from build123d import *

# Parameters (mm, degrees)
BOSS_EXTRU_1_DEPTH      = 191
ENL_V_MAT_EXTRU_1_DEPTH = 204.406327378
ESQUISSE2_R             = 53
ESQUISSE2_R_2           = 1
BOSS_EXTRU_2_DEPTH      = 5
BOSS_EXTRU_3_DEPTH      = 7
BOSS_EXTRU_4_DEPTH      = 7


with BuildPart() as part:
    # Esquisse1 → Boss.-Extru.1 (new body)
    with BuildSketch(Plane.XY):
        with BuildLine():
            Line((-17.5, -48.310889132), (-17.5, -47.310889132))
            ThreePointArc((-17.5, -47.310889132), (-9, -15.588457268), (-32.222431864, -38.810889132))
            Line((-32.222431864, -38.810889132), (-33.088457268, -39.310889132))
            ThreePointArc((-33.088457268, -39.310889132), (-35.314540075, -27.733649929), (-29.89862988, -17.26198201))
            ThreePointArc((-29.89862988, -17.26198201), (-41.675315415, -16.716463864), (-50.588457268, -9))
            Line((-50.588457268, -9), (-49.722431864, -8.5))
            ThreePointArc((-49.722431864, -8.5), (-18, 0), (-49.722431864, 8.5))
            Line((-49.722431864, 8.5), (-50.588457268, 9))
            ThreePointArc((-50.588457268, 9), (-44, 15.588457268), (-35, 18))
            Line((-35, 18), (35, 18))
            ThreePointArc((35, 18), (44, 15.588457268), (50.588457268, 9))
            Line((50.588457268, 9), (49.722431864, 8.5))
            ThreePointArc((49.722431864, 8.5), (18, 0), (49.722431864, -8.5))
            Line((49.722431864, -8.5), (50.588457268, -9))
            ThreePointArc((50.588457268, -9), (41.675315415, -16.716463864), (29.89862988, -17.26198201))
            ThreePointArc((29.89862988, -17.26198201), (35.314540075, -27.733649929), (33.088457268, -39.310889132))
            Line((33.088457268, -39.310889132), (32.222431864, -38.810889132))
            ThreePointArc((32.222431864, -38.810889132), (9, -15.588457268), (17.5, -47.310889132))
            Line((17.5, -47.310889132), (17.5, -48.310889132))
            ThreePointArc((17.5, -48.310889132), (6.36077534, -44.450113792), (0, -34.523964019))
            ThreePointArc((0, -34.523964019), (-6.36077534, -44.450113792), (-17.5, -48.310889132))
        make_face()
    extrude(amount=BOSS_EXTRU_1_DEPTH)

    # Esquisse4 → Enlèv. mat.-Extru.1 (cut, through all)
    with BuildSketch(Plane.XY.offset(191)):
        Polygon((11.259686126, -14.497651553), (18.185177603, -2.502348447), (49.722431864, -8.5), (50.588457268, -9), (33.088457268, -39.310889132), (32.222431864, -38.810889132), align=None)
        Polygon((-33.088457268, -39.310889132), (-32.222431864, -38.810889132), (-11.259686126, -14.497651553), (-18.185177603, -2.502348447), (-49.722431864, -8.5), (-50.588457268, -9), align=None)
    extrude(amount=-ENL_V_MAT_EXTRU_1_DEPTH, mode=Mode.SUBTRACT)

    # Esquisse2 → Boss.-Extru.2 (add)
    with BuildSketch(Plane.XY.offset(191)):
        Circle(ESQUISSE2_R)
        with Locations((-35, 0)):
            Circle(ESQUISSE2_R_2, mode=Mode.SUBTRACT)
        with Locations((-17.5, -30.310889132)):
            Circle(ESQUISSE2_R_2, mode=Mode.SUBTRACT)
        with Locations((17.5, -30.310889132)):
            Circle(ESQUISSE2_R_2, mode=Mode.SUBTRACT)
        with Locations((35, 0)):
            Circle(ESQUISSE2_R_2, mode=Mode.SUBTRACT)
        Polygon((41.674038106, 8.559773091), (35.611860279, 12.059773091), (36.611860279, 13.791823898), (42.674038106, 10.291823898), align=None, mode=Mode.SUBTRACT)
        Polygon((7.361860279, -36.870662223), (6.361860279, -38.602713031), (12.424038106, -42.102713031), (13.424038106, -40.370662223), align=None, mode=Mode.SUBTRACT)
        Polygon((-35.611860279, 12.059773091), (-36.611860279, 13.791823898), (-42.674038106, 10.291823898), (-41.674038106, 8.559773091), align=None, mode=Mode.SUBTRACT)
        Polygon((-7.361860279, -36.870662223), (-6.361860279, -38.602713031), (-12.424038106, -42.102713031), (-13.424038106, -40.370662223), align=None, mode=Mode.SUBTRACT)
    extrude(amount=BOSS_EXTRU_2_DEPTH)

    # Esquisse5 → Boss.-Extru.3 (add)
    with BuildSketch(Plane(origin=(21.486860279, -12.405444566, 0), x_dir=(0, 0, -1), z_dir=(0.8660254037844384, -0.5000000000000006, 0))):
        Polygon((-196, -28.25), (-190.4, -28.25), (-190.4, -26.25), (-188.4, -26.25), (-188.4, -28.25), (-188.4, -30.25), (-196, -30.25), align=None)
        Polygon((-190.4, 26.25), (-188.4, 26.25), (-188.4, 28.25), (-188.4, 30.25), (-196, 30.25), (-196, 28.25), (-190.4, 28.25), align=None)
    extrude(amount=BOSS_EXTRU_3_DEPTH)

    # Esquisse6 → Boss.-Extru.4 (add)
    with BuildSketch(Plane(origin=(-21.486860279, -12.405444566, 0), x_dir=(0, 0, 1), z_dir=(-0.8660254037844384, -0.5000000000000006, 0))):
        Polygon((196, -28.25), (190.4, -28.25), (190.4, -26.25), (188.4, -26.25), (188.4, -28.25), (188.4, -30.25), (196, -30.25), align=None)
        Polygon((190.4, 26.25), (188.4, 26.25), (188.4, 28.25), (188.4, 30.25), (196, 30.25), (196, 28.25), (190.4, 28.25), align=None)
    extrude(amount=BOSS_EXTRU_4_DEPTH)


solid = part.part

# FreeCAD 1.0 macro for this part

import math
import FreeCAD as App
import Part
import Sketcher
Q = App.Units.Quantity


def add_polygon(sketch, points):
    """Adds a closed chain of lines whose ends are joined by coincident constraints."""
    first, n = sketch.GeometryCount, len(points)
    for a, b in zip(points, points[1:] + points[:1]):
        sketch.addGeometry(Part.LineSegment(App.Vector(*a, 0), App.Vector(*b, 0)), False)
    for i in range(n):
        sketch.addConstraint(Sketcher.Constraint("Coincident", first + i, 2, first + (i + 1) % n, 1))

doc = App.newDocument("Part")
body = doc.addObject("PartDesign::Body", "Body")

# Sketch on XY plane
sketch1 = body.newObject("Sketcher::SketchObject", "Sketch")
sketch1.AttachmentSupport = (doc.getObject("XY_Plane"), [""])
sketch1.MapMode = "FlatFace"
sketch1.addGeometry([
    Part.LineSegment(App.Vector(-17.5, -47.3, 0), App.Vector(-17.5, -48.3, 0)),  # 0
    Part.ArcOfCircle(Part.Circle(App.Vector(-17.5, -30.3, 0), App.Vector(0, 0, 1), 18), math.radians(-90), math.radians(-14)),  # 1
    Part.ArcOfCircle(Part.Circle(App.Vector(17.5, -30.3, 0), App.Vector(0, 0, 1), 18), math.radians(-166), math.radians(-90)),  # 2
    Part.LineSegment(App.Vector(17.5, -48.3, 0), App.Vector(17.5, -47.3, 0)),  # 3
    Part.ArcOfCircle(Part.Circle(App.Vector(17.5, -30.3, 0), App.Vector(0, 0, 1), 17), math.radians(-30), math.radians(270)),  # 4
    Part.LineSegment(App.Vector(32.2, -38.8, 0), App.Vector(33.1, -39.3, 0)),  # 5
    Part.ArcOfCircle(Part.Circle(App.Vector(17.5, -30.3, 0), App.Vector(0, 0, 1), 18), math.radians(-30), math.radians(46)),  # 6
    Part.ArcOfCircle(Part.Circle(App.Vector(35, 0, 0), App.Vector(0, 0, 1), 18), math.radians(-106), math.radians(-30)),  # 7
    Part.LineSegment(App.Vector(50.6, -9, 0), App.Vector(49.7, -8.5, 0)),  # 8
    Part.ArcOfCircle(Part.Circle(App.Vector(35, 0, 0), App.Vector(0, 0, 1), 17), math.radians(30), math.radians(330)),  # 9
    Part.LineSegment(App.Vector(49.7, 8.5, 0), App.Vector(50.6, 9, 0)),  # 10
    Part.ArcOfCircle(Part.Circle(App.Vector(35, 0, 0), App.Vector(0, 0, 1), 18), math.radians(30), math.radians(90)),  # 11
    Part.LineSegment(App.Vector(35, 18, 0), App.Vector(-35, 18, 0)),  # 12
    Part.ArcOfCircle(Part.Circle(App.Vector(-35, 0, 0), App.Vector(0, 0, 1), 18), math.radians(90), math.radians(150)),  # 13
    Part.LineSegment(App.Vector(-50.6, 9, 0), App.Vector(-49.7, 8.5, 0)),  # 14
    Part.ArcOfCircle(Part.Circle(App.Vector(-35, 0, 0), App.Vector(0, 0, 1), 17), math.radians(-150), math.radians(150)),  # 15
    Part.LineSegment(App.Vector(-49.7, -8.5, 0), App.Vector(-50.6, -9, 0)),  # 16
    Part.ArcOfCircle(Part.Circle(App.Vector(-35, 0, 0), App.Vector(0, 0, 1), 18), math.radians(-150), math.radians(-74)),  # 17
    Part.ArcOfCircle(Part.Circle(App.Vector(-17.5, -30.3, 0), App.Vector(0, 0, 1), 18), math.radians(134), math.radians(210)),  # 18
    Part.LineSegment(App.Vector(-33.1, -39.3, 0), App.Vector(-32.2, -38.8, 0)),  # 19
    Part.ArcOfCircle(Part.Circle(App.Vector(-17.5, -30.3, 0), App.Vector(0, 0, 1), 17), math.radians(-90), math.radians(210)),  # 20
], False)
sketch1.addConstraint([
    Sketcher.Constraint("Coincident", 0, 2, 1, 1),
    Sketcher.Constraint("Coincident", 1, 2, 2, 1),
    Sketcher.Constraint("Coincident", 2, 2, 3, 1),
    Sketcher.Constraint("Coincident", 3, 2, 4, 2),
    Sketcher.Constraint("Coincident", 4, 1, 5, 1),
    Sketcher.Constraint("Coincident", 5, 2, 6, 1),
    Sketcher.Constraint("Coincident", 6, 2, 7, 1),
    Sketcher.Constraint("Coincident", 7, 2, 8, 1),
    Sketcher.Constraint("Coincident", 8, 2, 9, 2),
    Sketcher.Constraint("Coincident", 9, 1, 10, 1),
    Sketcher.Constraint("Coincident", 10, 2, 11, 1),
    Sketcher.Constraint("Tangent", 11, 2, 12, 1),
    Sketcher.Constraint("Tangent", 12, 2, 13, 1),
    Sketcher.Constraint("Coincident", 13, 2, 14, 1),
    Sketcher.Constraint("Coincident", 14, 2, 15, 2),
    Sketcher.Constraint("Coincident", 15, 1, 16, 1),
    Sketcher.Constraint("Coincident", 16, 2, 17, 1),
    Sketcher.Constraint("Coincident", 17, 2, 18, 1),
    Sketcher.Constraint("Coincident", 18, 2, 19, 1),
    Sketcher.Constraint("Coincident", 19, 2, 20, 2),
    Sketcher.Constraint("Coincident", 20, 1, 0, 1),
    Sketcher.Constraint("Vertical", 0),
    Sketcher.Constraint("Vertical", 3),
    Sketcher.Constraint("Horizontal", 12),
    Sketcher.Constraint("Coincident", 4, 3, 2, 3),
    Sketcher.Constraint("Coincident", 6, 3, 2, 3),
    Sketcher.Constraint("Coincident", 9, 3, 7, 3),
    Sketcher.Constraint("Coincident", 11, 3, 7, 3),
    Sketcher.Constraint("Coincident", 15, 3, 13, 3),
    Sketcher.Constraint("Coincident", 17, 3, 13, 3),
    Sketcher.Constraint("Coincident", 18, 3, 1, 3),
    Sketcher.Constraint("Coincident", 20, 3, 1, 3),
    Sketcher.Constraint("Equal", 1, 2),
    Sketcher.Constraint("Equal", 2, 6),
    Sketcher.Constraint("Equal", 6, 7),
    Sketcher.Constraint("Equal", 4, 9),
    Sketcher.Constraint("Equal", 7, 11),
    Sketcher.Constraint("Equal", 11, 13),
    Sketcher.Constraint("Equal", 9, 15),
    Sketcher.Constraint("Equal", 13, 17),
    Sketcher.Constraint("Equal", 17, 18),
    Sketcher.Constraint("Equal", 15, 20),
    Sketcher.Constraint("Symmetric", 7, 3, 13, 3, -1, 1),
    Sketcher.Constraint("Symmetric", 1, 3, 2, 3, -2),
    Sketcher.Constraint("Parallel", 5, 8),
    Sketcher.Constraint("Parallel", 8, 14),
    Sketcher.Constraint("Parallel", 10, 16),
    Sketcher.Constraint("Parallel", 16, 19),
    Sketcher.Constraint("Horizontal", 10, 2, 13, 2),
    Sketcher.Constraint("Horizontal", 9, 1, 14, 2),
    Sketcher.Constraint("Horizontal", 8, 2, 15, 1),
    Sketcher.Constraint("Horizontal", 5, 2, 18, 2),
    Sketcher.Constraint("Vertical", 20, 3, 0, 2),
    Sketcher.Constraint("Vertical", 6, 3, 2, 2),
    Sketcher.Constraint("Vertical", 8, 2, 9, 1),
    Sketcher.Constraint("Radius", 1, Q("18 mm")),
    Sketcher.Constraint("Radius", 4, Q("17 mm")),
    Sketcher.Constraint("DistanceX", 12, 2, 12, 1, Q("70 mm")),
    Sketcher.Constraint("Angle", 5, Q("-30 deg")),
    Sketcher.Constraint("DistanceY", 7, 2, -1, 1, Q("9 mm")),
    Sketcher.Constraint("DistanceX", 1, 3, 2, 3, Q("35 mm")),
    Sketcher.Constraint("DistanceY", 3, 2, 5, 2, Q("8 mm")),
    Sketcher.Constraint("DistanceX", 6, 2, 8, 2, Q("19.823802 mm")),
])
pad1 = body.newObject("PartDesign::Pad", "Pad")
pad1.Profile = sketch1
pad1.Length = 191

# Sketch on XY plane
sketch2 = body.newObject("Sketcher::SketchObject", "Sketch001")
sketch2.AttachmentSupport = (doc.getObject("XY_Plane"), [""])
sketch2.MapMode = "FlatFace"
sketch2.AttachmentOffset = App.Placement(App.Vector(0, 0, 191), App.Rotation())
add_polygon(sketch2, [(18.2, -2.5), (11.3, -14.5), (32.2, -38.8), (33.1, -39.3), (50.6, -9), (49.7, -8.5)])  # lines 0-5
add_polygon(sketch2, [(-33.1, -39.3), (-32.2, -38.8), (-11.3, -14.5), (-18.2, -2.5), (-49.7, -8.5), (-50.6, -9)])  # lines 6-11
sketch2.addConstraint([
    Sketcher.Constraint("Symmetric", 1, 2, 6, 2, -2),
    Sketcher.Constraint("Symmetric", 0, 2, 7, 2, -2),
    Sketcher.Constraint("Symmetric", 5, 2, 8, 2, -2),
    Sketcher.Constraint("Symmetric", 4, 2, 9, 2, -2),
    Sketcher.Constraint("Symmetric", 3, 2, 10, 2, -2),
    Sketcher.Constraint("Symmetric", 2, 2, 11, 2, -2),
    Sketcher.Constraint("Perpendicular", 0, 2),
    Sketcher.Constraint("Perpendicular", 2, 3),
    Sketcher.Constraint("Perpendicular", 3, 4),
    Sketcher.Constraint("Equal", 2, 4),
    Sketcher.Constraint("Equal", 1, 5),
    Sketcher.Constraint("Angle", 0, Q("-120 deg")),
    Sketcher.Constraint("Distance", 2, Q("1 mm")),
    Sketcher.Constraint("Distance", 3, Q("35 mm")),
    Sketcher.Constraint("DistanceY", 3, 2, -1, 1, Q("9 mm")),
    Sketcher.Constraint("DistanceY", 0, 2, -1, 1, Q("14.497652 mm")),
    Sketcher.Constraint("DistanceX", -1, 1, 1, 2, Q("32.222432 mm")),
    Sketcher.Constraint("DistanceY", 5, 2, -1, 1, Q("2.502348 mm")),
])
pocket1 = body.newObject("PartDesign::Pocket", "Pocket")
pocket1.Profile = sketch2
pocket1.Type = "ThroughAll"

# Sketch on XY plane
sketch3 = body.newObject("Sketcher::SketchObject", "Sketch002")
sketch3.AttachmentSupport = (doc.getObject("XY_Plane"), [""])
sketch3.MapMode = "FlatFace"
sketch3.AttachmentOffset = App.Placement(App.Vector(0, 0, 191), App.Rotation())
sketch3.addGeometry(Part.Circle(App.Vector(0, 0, 0), App.Vector(0, 0, 1), 53), False)  # 0
add_polygon(sketch3, [(-13.4, -40.4), (-7.4, -36.9), (-6.4, -38.6), (-12.4, -42.1)])  # lines 1-4
sketch3.addGeometry(Part.Circle(App.Vector(-17.5, -30.3, 0), App.Vector(0, 0, 1), 1), False)  # 5
add_polygon(sketch3, [(6.4, -38.6), (7.4, -36.9), (13.4, -40.4), (12.4, -42.1)])  # lines 6-9
sketch3.addGeometry(Part.Circle(App.Vector(17.5, -30.3, 0), App.Vector(0, 0, 1), 1), False)  # 10
sketch3.addGeometry(Part.Circle(App.Vector(-35, 0, 0), App.Vector(0, 0, 1), 1), False)  # 11
add_polygon(sketch3, [(-36.6, 13.8), (-35.6, 12.1), (-41.7, 8.6), (-42.7, 10.3)])  # lines 12-15
sketch3.addGeometry(Part.Circle(App.Vector(35, 0, 0), App.Vector(0, 0, 1), 1), False)  # 16
add_polygon(sketch3, [(42.7, 10.3), (41.7, 8.6), (35.6, 12.1), (36.6, 13.8)])  # lines 17-20
sketch3.addConstraint([
    Sketcher.Constraint("Coincident", 0, 3, -1, 1),
    Sketcher.Constraint("Equal", 5, 10),
    Sketcher.Constraint("Equal", 10, 11),
    Sketcher.Constraint("Equal", 11, 16),
    Sketcher.Constraint("Symmetric", 11, 3, 16, 3, -1, 1),
    Sketcher.Constraint("Symmetric", 5, 3, 10, 3, -2),
    Sketcher.Constraint("Symmetric", 1, 2, 6, 2, -2),
    Sketcher.Constraint("Symmetric", 4, 2, 7, 2, -2),
    Sketcher.Constraint("Symmetric", 3, 2, 8, 2, -2),
    Sketcher.Constraint("Symmetric", 2, 2, 9, 2, -2),
    Sketcher.Constraint("Symmetric", 13, 2, 17, 2, -2),
    Sketcher.Constraint("Symmetric", 12, 2, 18, 2, -2),
    Sketcher.Constraint("Symmetric", 15, 2, 19, 2, -2),
    Sketcher.Constraint("Symmetric", 14, 2, 20, 2, -2),
    Sketcher.Constraint("PointOnObject", 11, 3, -1),
    Sketcher.Constraint("Perpendicular", 1, 2),
    Sketcher.Constraint("Perpendicular", 2, 3),
    Sketcher.Constraint("Perpendicular", 3, 4),
    Sketcher.Constraint("Parallel", 4, 12),
    Sketcher.Constraint("Perpendicular", 12, 13),
    Sketcher.Constraint("Perpendicular", 13, 14),
    Sketcher.Constraint("Perpendicular", 14, 15),
    Sketcher.Constraint("Equal", 8, 12),
    Sketcher.Constraint("Equal", 9, 13),
    Sketcher.Constraint("Diameter", 0, Q("106 mm")),
    Sketcher.Constraint("Diameter", 5, Q("2 mm")),
    Sketcher.Constraint("Angle", 1, Q("30 deg")),
    Sketcher.Constraint("Distance", 1, Q("7 mm")),
    Sketcher.Constraint("Distance", 2, Q("2 mm")),
    Sketcher.Constraint("DistanceX", 11, 3, -1, 1, Q("35 mm")),
    Sketcher.Constraint("DistanceX", 5, 3, 10, 3, Q("35 mm")),
    Sketcher.Constraint("DistanceX", 12, 2, 1, 2, Q("28.25 mm")),
    Sketcher.Constraint("DistanceX", 3, 2, 6, 2, Q("19.785898 mm")),
    Sketcher.Constraint("DistanceY", 5, 3, -1, 1, Q("30.310889 mm")),
    Sketcher.Constraint("DistanceY", 1, 2, -1, 1, Q("36.870662 mm")),
    Sketcher.Constraint("DistanceY", -1, 1, 12, 2, Q("12.059773 mm")),
])
pad2 = body.newObject("PartDesign::Pad", "Pad001")
pad2.Profile = sketch3
pad2.Length = 5

# Sketch on an angled plane
sketch4 = body.newObject("Sketcher::SketchObject", "Sketch003")
sketch4.Placement = App.Placement(App.Vector(21.48686, -12.405445, 0), App.Rotation(App.Vector(0, 0, -1), App.Vector(0.5, 0.866025404, 0), App.Vector(0.866025404, -0.5, 0), "ZXY"))
add_polygon(sketch4, [(-190.4, -28.3), (-196, -28.3), (-196, -30.3), (-188.4, -30.3), (-188.4, -26.3), (-190.4, -26.3)])  # lines 0-5
add_polygon(sketch4, [(-190.4, 26.3), (-188.4, 26.3), (-188.4, 30.3), (-196, 30.3), (-196, 28.3), (-190.4, 28.3)])  # lines 6-11
sketch4.addConstraint([
    Sketcher.Constraint("Horizontal", 0),
    Sketcher.Constraint("Vertical", 1),
    Sketcher.Constraint("Horizontal", 2),
    Sketcher.Constraint("Vertical", 3),
    Sketcher.Constraint("Horizontal", 4),
    Sketcher.Constraint("Vertical", 5),
    Sketcher.Constraint("Horizontal", 6),
    Sketcher.Constraint("Vertical", 7),
    Sketcher.Constraint("Horizontal", 8),
    Sketcher.Constraint("Vertical", 9),
    Sketcher.Constraint("Horizontal", 10),
    Sketcher.Constraint("Vertical", 11),
    Sketcher.Constraint("Symmetric", 3, 2, 6, 2, -1),
    Sketcher.Constraint("Symmetric", 1, 2, 8, 2, -1),
    Sketcher.Constraint("Symmetric", 5, 2, 10, 2, -1),
    Sketcher.Constraint("Equal", 6, 1),
    Sketcher.Constraint("Equal", 1, 5),
    Sketcher.Constraint("DistanceX", 4, 2, 4, 1, Q("2 mm")),
    Sketcher.Constraint("DistanceX", 0, 2, 0, 1, Q("5.6 mm")),
    Sketcher.Constraint("DistanceX", 0, 2, -1, 1, Q("196 mm")),
    Sketcher.Constraint("DistanceY", 3, 2, 6, 2, Q("52.5 mm")),
])
pad3 = body.newObject("PartDesign::Pad", "Pad002")
pad3.Profile = sketch4
pad3.Length = 7

# Sketch on an angled plane
sketch5 = body.newObject("Sketcher::SketchObject", "Sketch004")
sketch5.Placement = App.Placement(App.Vector(-21.48686, -12.405445, 0), App.Rotation(App.Vector(0, 0, 1), App.Vector(-0.5, 0.866025404, 0), App.Vector(-0.866025404, -0.5, 0), "ZXY"))
add_polygon(sketch5, [(196, -28.3), (190.4, -28.3), (190.4, -26.3), (188.4, -26.3), (188.4, -30.3), (196, -30.3)])  # lines 0-5
add_polygon(sketch5, [(188.4, 26.3), (190.4, 26.3), (190.4, 28.3), (196, 28.3), (196, 30.3), (188.4, 30.3)])  # lines 6-11
sketch5.addConstraint([
    Sketcher.Constraint("Horizontal", 0),
    Sketcher.Constraint("Vertical", 1),
    Sketcher.Constraint("Horizontal", 2),
    Sketcher.Constraint("Vertical", 3),
    Sketcher.Constraint("Horizontal", 4),
    Sketcher.Constraint("Vertical", 5),
    Sketcher.Constraint("Horizontal", 6),
    Sketcher.Constraint("Vertical", 7),
    Sketcher.Constraint("Horizontal", 8),
    Sketcher.Constraint("Vertical", 9),
    Sketcher.Constraint("Horizontal", 10),
    Sketcher.Constraint("Vertical", 11),
    Sketcher.Constraint("Symmetric", 1, 2, 6, 2, -1),
    Sketcher.Constraint("Symmetric", 5, 2, 8, 2, -1),
    Sketcher.Constraint("Symmetric", 3, 2, 10, 2, -1),
    Sketcher.Constraint("Equal", 6, 1),
    Sketcher.Constraint("Equal", 1, 5),
    Sketcher.Constraint("DistanceX", 2, 2, 2, 1, Q("2 mm")),
    Sketcher.Constraint("DistanceX", 0, 2, 0, 1, Q("5.6 mm")),
    Sketcher.Constraint("DistanceX", -1, 1, 4, 2, Q("196 mm")),
    Sketcher.Constraint("DistanceY", 1, 2, 6, 2, Q("52.5 mm")),
])
pad4 = body.newObject("PartDesign::Pad", "Pad003")
pad4.Profile = sketch5
pad4.Length = 7

doc.recompute()
